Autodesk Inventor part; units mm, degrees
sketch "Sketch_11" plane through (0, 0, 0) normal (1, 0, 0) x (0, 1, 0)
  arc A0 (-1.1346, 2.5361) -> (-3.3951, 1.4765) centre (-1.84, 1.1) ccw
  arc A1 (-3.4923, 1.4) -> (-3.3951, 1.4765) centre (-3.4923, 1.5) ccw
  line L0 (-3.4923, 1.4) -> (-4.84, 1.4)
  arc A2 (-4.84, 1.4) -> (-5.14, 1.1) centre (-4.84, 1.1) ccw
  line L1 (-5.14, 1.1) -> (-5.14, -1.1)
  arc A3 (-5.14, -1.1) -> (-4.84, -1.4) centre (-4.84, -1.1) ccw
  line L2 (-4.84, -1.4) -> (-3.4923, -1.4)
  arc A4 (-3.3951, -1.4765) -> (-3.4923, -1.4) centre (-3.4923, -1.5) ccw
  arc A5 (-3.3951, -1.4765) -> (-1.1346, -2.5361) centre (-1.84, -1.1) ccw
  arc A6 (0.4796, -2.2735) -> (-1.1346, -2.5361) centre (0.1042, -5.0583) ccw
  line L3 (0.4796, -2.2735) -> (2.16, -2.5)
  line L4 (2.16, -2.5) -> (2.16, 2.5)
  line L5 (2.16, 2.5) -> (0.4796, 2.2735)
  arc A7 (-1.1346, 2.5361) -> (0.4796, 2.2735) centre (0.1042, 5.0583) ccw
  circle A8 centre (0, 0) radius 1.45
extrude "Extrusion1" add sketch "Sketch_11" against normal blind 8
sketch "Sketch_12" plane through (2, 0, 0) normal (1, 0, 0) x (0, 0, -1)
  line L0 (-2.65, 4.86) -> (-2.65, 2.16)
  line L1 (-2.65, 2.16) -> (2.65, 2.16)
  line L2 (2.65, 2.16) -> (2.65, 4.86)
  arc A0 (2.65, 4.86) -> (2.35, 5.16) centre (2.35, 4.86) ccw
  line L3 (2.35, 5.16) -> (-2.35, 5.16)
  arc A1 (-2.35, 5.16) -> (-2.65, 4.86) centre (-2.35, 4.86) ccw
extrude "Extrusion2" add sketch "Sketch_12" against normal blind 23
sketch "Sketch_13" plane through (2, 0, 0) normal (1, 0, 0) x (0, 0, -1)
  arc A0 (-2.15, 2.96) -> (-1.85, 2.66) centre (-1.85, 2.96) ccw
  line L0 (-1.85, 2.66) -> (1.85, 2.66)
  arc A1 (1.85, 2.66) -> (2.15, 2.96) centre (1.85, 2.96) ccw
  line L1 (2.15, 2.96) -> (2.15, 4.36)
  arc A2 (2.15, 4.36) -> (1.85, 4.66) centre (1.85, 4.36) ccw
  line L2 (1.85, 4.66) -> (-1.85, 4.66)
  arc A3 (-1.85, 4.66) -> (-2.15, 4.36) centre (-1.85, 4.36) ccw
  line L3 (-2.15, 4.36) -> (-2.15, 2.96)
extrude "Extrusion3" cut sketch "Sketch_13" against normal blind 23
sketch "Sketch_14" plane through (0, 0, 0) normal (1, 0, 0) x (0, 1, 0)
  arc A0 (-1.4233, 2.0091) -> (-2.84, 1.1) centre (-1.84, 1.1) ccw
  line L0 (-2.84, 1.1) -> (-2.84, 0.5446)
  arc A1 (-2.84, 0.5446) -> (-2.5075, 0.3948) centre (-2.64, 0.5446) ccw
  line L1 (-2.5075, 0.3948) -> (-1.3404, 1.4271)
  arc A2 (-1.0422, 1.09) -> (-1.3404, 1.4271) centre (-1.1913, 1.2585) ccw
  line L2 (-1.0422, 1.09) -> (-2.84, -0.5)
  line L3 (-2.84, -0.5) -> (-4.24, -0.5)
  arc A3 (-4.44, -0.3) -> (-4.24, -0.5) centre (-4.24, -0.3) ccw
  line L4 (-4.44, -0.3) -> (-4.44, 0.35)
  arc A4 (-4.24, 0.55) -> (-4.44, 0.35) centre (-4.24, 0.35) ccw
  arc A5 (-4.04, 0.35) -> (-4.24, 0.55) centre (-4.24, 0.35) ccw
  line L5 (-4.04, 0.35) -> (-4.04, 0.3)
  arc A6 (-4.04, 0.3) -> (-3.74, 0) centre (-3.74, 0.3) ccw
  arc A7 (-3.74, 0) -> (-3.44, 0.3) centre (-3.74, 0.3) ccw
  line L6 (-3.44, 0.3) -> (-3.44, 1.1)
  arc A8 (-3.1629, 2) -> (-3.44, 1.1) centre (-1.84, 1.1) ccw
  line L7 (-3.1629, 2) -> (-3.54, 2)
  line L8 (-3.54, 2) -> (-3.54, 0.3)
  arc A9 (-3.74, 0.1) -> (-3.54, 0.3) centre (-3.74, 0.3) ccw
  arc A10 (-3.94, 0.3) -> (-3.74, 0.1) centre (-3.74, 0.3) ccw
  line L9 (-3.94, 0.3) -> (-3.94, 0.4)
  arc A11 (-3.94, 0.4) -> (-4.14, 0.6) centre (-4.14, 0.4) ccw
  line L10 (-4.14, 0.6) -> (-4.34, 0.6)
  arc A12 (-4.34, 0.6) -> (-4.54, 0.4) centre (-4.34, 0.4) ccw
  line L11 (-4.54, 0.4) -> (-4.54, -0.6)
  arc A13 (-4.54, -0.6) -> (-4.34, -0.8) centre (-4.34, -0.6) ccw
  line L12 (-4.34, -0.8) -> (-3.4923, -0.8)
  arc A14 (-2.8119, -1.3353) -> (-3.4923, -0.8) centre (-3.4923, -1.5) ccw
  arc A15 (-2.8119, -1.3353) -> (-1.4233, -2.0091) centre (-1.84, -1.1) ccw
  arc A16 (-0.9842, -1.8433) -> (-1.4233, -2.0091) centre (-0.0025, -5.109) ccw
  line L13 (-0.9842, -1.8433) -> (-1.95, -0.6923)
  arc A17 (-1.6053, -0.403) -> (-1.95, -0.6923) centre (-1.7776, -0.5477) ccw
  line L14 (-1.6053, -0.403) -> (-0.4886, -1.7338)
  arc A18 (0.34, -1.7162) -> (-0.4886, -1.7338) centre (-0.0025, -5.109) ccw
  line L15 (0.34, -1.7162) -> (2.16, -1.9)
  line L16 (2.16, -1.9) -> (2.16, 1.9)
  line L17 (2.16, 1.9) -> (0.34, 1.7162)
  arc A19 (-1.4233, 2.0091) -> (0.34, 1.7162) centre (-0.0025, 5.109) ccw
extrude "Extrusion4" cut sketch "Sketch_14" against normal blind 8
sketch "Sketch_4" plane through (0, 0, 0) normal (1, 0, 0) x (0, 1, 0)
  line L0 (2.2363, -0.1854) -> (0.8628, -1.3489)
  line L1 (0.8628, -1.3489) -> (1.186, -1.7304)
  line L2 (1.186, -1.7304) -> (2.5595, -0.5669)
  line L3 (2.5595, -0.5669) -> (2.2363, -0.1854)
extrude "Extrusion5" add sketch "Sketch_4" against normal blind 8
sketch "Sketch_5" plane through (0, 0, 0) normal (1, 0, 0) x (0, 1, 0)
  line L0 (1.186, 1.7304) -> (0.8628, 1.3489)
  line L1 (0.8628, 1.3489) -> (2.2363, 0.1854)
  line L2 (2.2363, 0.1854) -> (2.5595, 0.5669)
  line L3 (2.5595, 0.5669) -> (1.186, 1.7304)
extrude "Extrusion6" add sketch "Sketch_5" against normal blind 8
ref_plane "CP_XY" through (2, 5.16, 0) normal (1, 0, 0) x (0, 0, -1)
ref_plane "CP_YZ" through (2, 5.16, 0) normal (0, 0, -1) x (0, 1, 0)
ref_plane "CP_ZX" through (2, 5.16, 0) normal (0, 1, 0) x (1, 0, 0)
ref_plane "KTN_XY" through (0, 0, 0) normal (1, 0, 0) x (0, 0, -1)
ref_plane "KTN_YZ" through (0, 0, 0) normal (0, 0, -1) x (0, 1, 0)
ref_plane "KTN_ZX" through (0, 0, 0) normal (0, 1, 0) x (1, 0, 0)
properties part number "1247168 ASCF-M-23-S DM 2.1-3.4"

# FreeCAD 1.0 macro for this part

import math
import FreeCAD as App
import Part
import Sketcher
from FreeCAD import Vector
Q = App.Units.Quantity

doc = App.newDocument("Part")
body = doc.addObject("PartDesign::Body", "Body")

# Sketch on YZ plane
sketch1 = doc.addObject("Sketcher::SketchObject", "Sketch")
body.addObject(sketch1)
sketch1.AttachmentSupport = (doc.YZ_Plane, [""])
sketch1.MapMode = "FlatFace"
sketch1.addGeometry([
    Part.ArcOfCircle(Part.Circle(Vector(0.1, 5.06, 0), Vector(0, 0, 1), 2.81), math.radians(-116), math.radians(-82)),  # 0
    Part.ArcOfCircle(Part.Circle(Vector(-1.84, 1.1, 0), Vector(0, 0, 1), 1.6), math.radians(64), math.radians(166)),  # 1
    Part.ArcOfCircle(Part.Circle(Vector(-3.49, 1.5, 0), Vector(0, 0, 1), 0.1), math.radians(-90), math.radians(-14)),  # 2
    Part.LineSegment(Vector(-3.49, 1.4, 0), Vector(-4.84, 1.4, 0)),  # 3
    Part.ArcOfCircle(Part.Circle(Vector(-4.84, 1.1, 0), Vector(0, 0, 1), 0.3), math.radians(90), math.radians(180)),  # 4
    Part.LineSegment(Vector(-5.14, 1.1, 0), Vector(-5.14, -1.1, 0)),  # 5
    Part.ArcOfCircle(Part.Circle(Vector(-4.84, -1.1, 0), Vector(0, 0, 1), 0.3), math.radians(180), math.radians(270)),  # 6
    Part.LineSegment(Vector(-4.84, -1.4, 0), Vector(-3.49, -1.4, 0)),  # 7
    Part.ArcOfCircle(Part.Circle(Vector(-3.49, -1.5, 0), Vector(0, 0, 1), 0.1), math.radians(14), math.radians(90)),  # 8
    Part.ArcOfCircle(Part.Circle(Vector(-1.84, -1.1, 0), Vector(0, 0, 1), 1.6), math.radians(-166), math.radians(-64)),  # 9
    Part.ArcOfCircle(Part.Circle(Vector(0.1, -5.06, 0), Vector(0, 0, 1), 2.81), math.radians(82), math.radians(116)),  # 10
    Part.LineSegment(Vector(0.48, -2.27, 0), Vector(2.16, -2.5, 0)),  # 11
    Part.LineSegment(Vector(2.16, -2.5, 0), Vector(2.16, 2.5, 0)),  # 12
    Part.LineSegment(Vector(2.16, 2.5, 0), Vector(0.48, 2.27, 0)),  # 13
    Part.Circle(Vector(0, 0, 0), Vector(0, 0, 1), 1.45),  # 14
], False)
sketch1.addConstraint([
    Sketcher.Constraint("Tangent", 0, 1, 1, 1),
    Sketcher.Constraint("Tangent", 1, 2, 2, 2),
    Sketcher.Constraint("Tangent", 2, 1, 3, 1),
    Sketcher.Constraint("Tangent", 3, 2, 4, 1),
    Sketcher.Constraint("Tangent", 4, 2, 5, 1),
    Sketcher.Constraint("Tangent", 5, 2, 6, 1),
    Sketcher.Constraint("Tangent", 6, 2, 7, 1),
    Sketcher.Constraint("Tangent", 7, 2, 8, 2),
    Sketcher.Constraint("Tangent", 8, 1, 9, 1),
    Sketcher.Constraint("Tangent", 9, 2, 10, 2),
    Sketcher.Constraint("Tangent", 10, 1, 11, 1),
    Sketcher.Constraint("Coincident", 11, 2, 12, 1),
    Sketcher.Constraint("Coincident", 12, 2, 13, 1),
    Sketcher.Constraint("Tangent", 13, 2, 0, 2),
    Sketcher.Constraint("Horizontal", 3),
    Sketcher.Constraint("Vertical", 5),
    Sketcher.Constraint("Horizontal", 7),
    Sketcher.Constraint("Vertical", 12),
    Sketcher.Constraint("Coincident", 14, 3, -1, 1),
    Sketcher.Constraint("Equal", 4, 6),
    Sketcher.Constraint("Equal", 2, 8),
    Sketcher.Constraint("Equal", 1, 9),
    Sketcher.Constraint("Equal", 0, 10),
    Sketcher.Constraint("Symmetric", 2, 3, 8, 3, -1),
    Sketcher.Constraint("Symmetric", 0, 3, 10, 3, -1),
    Sketcher.Constraint("Horizontal", 1, 3, 4, 3),
    Sketcher.Constraint("Vertical", 10, 1, 13, 2),
    Sketcher.Constraint("Diameter", 14, Q("2.9 mm")),
    Sketcher.Constraint("Radius", 1, Q("1.6 mm")),
    Sketcher.Constraint("Radius", 2, Q("0.1 mm")),
    Sketcher.Constraint("Radius", 4, Q("0.3 mm")),
    Sketcher.Constraint("DistanceY", 12, 1, 12, 2, Q("5 mm")),
    Sketcher.Constraint("Radius", 0, Q("2.81 mm")),
    Sketcher.Constraint("DistanceY", 5, 2, 5, 1, Q("2.2 mm")),
    Sketcher.Constraint("DistanceX", 4, 3, 1, 3, Q("3 mm")),
    Sketcher.Constraint("DistanceX", 9, 3, 11, 2, Q("4 mm")),
    Sketcher.Constraint("DistanceX", 1, 3, -1, 1, Q("1.84 mm")),
    Sketcher.Constraint("DistanceY", -1, 1, 0, 1, Q("2.536 mm")),
])
pad1 = doc.addObject("PartDesign::Pad", "Pad")
body.addObject(pad1)
pad1.Profile = sketch1
pad1.Length = 8
pad1.Reversed = True

# Sketch on YZ plane
sketch2 = doc.addObject("Sketcher::SketchObject", "Sketch001")
body.addObject(sketch2)
sketch2.AttachmentSupport = (doc.YZ_Plane, [""])
sketch2.MapMode = "FlatFace"
sketch2.AttachmentOffset = App.Placement(Vector(0, 0, 2), App.Rotation())
sketch2.addGeometry([
    Part.ArcOfCircle(Part.Circle(Vector(4.86, 2.35, 0), Vector(0, 0, 1), 0.3), math.radians(0), math.radians(90)),  # 0
    Part.LineSegment(Vector(4.86, 2.65, 0), Vector(2.16, 2.65, 0)),  # 1
    Part.LineSegment(Vector(2.16, 2.65, 0), Vector(2.16, -2.65, 0)),  # 2
    Part.LineSegment(Vector(2.16, -2.65, 0), Vector(4.86, -2.65, 0)),  # 3
    Part.ArcOfCircle(Part.Circle(Vector(4.86, -2.35, 0), Vector(0, 0, 1), 0.3), math.radians(-90), math.radians(0)),  # 4
    Part.LineSegment(Vector(5.16, -2.35, 0), Vector(5.16, 2.35, 0)),  # 5
], False)
sketch2.addConstraint([
    Sketcher.Constraint("Tangent", 0, 2, 1, 1),
    Sketcher.Constraint("Coincident", 1, 2, 2, 1),
    Sketcher.Constraint("Coincident", 2, 2, 3, 1),
    Sketcher.Constraint("Tangent", 3, 2, 4, 1),
    Sketcher.Constraint("Tangent", 4, 2, 5, 1),
    Sketcher.Constraint("Tangent", 5, 2, 0, 1),
    Sketcher.Constraint("Horizontal", 1),
    Sketcher.Constraint("Vertical", 2),
    Sketcher.Constraint("Horizontal", 3),
    Sketcher.Constraint("Vertical", 5),
    Sketcher.Constraint("Equal", 0, 4),
    Sketcher.Constraint("Radius", 0, Q("0.3 mm")),
    Sketcher.Constraint("DistanceX", 1, 2, 1, 1, Q("2.7 mm")),
    Sketcher.Constraint("DistanceY", 2, 2, 2, 1, Q("5.3 mm")),
    Sketcher.Constraint("DistanceX", -1, 1, 0, 3, Q("4.86 mm")),
    Sketcher.Constraint("DistanceY", -1, 1, 0, 3, Q("2.35 mm")),
])
pad2 = doc.addObject("PartDesign::Pad", "Pad001")
body.addObject(pad2)
pad2.Profile = sketch2
pad2.Length = 23
pad2.Reversed = True

# Sketch on YZ plane
sketch3 = doc.addObject("Sketcher::SketchObject", "Sketch002")
body.addObject(sketch3)
sketch3.AttachmentSupport = (doc.YZ_Plane, [""])
sketch3.MapMode = "FlatFace"
sketch3.AttachmentOffset = App.Placement(Vector(0, 0, 2), App.Rotation())
sketch3.addGeometry([
    Part.LineSegment(Vector(4.36, 2.15, 0), Vector(2.96, 2.15, 0)),  # 0
    Part.ArcOfCircle(Part.Circle(Vector(2.96, 1.85, 0), Vector(0, 0, 1), 0.3), math.radians(90), math.radians(180)),  # 1
    Part.LineSegment(Vector(2.66, 1.85, 0), Vector(2.66, -1.85, 0)),  # 2
    Part.ArcOfCircle(Part.Circle(Vector(2.96, -1.85, 0), Vector(0, 0, 1), 0.3), math.radians(180), math.radians(270)),  # 3
    Part.LineSegment(Vector(2.96, -2.15, 0), Vector(4.36, -2.15, 0)),  # 4
    Part.ArcOfCircle(Part.Circle(Vector(4.36, -1.85, 0), Vector(0, 0, 1), 0.3), math.radians(-90), math.radians(0)),  # 5
    Part.LineSegment(Vector(4.66, -1.85, 0), Vector(4.66, 1.85, 0)),  # 6
    Part.ArcOfCircle(Part.Circle(Vector(4.36, 1.85, 0), Vector(0, 0, 1), 0.3), math.radians(0), math.radians(90)),  # 7
], False)
sketch3.addConstraint([
    Sketcher.Constraint("Tangent", 0, 2, 1, 1),
    Sketcher.Constraint("Tangent", 1, 2, 2, 1),
    Sketcher.Constraint("Tangent", 2, 2, 3, 1),
    Sketcher.Constraint("Tangent", 3, 2, 4, 1),
    Sketcher.Constraint("Tangent", 4, 2, 5, 1),
    Sketcher.Constraint("Tangent", 5, 2, 6, 1),
    Sketcher.Constraint("Tangent", 6, 2, 7, 1),
    Sketcher.Constraint("Tangent", 7, 2, 0, 1),
    Sketcher.Constraint("Horizontal", 0),
    Sketcher.Constraint("Vertical", 2),
    Sketcher.Constraint("Horizontal", 4),
    Sketcher.Constraint("Vertical", 6),
    Sketcher.Constraint("Equal", 1, 3),
    Sketcher.Constraint("Equal", 3, 5),
    Sketcher.Constraint("Equal", 5, 7),
    Sketcher.Constraint("Radius", 1, Q("0.3 mm")),
    Sketcher.Constraint("DistanceX", 0, 2, 0, 1, Q("1.4 mm")),
    Sketcher.Constraint("DistanceY", 2, 2, 2, 1, Q("3.7 mm")),
    Sketcher.Constraint("DistanceX", -1, 1, 1, 3, Q("2.96 mm")),
    Sketcher.Constraint("DistanceY", -1, 1, 1, 3, Q("1.85 mm")),
])
pocket1 = doc.addObject("PartDesign::Pocket", "Pocket")
body.addObject(pocket1)
pocket1.Profile = sketch3
pocket1.Length = 23

# Sketch on YZ plane
sketch4 = doc.addObject("Sketcher::SketchObject", "Sketch003")
body.addObject(sketch4)
sketch4.AttachmentSupport = (doc.YZ_Plane, [""])
sketch4.MapMode = "FlatFace"
sketch4.addGeometry([
    Part.ArcOfCircle(Part.Circle(Vector(0, 5.11, 0), Vector(0, 0, 1), 3.41), math.radians(-115), math.radians(-84)),  # 0
    Part.ArcOfCircle(Part.Circle(Vector(-1.84, 1.1, 0), Vector(0, 0, 1), 1), math.radians(65), math.radians(180)),  # 1
    Part.LineSegment(Vector(-2.84, 1.1, 0), Vector(-2.84, 0.54, 0)),  # 2
    Part.ArcOfCircle(Part.Circle(Vector(-2.64, 0.54, 0), Vector(0, 0, 1), 0.2), math.radians(180), math.radians(311)),  # 3
    Part.LineSegment(Vector(-2.51, 0.39, 0), Vector(-1.34, 1.43, 0)),  # 4
    Part.ArcOfCircle(Part.Circle(Vector(-1.19, 1.26, 0), Vector(0, 0, 1), 0.22), math.radians(-48), math.radians(131)),  # 5
    Part.LineSegment(Vector(-1.04, 1.09, 0), Vector(-2.84, -0.5, 0)),  # 6
    Part.LineSegment(Vector(-2.84, -0.5, 0), Vector(-4.24, -0.5, 0)),  # 7
    Part.ArcOfCircle(Part.Circle(Vector(-4.24, -0.3, 0), Vector(0, 0, 1), 0.2), math.radians(180), math.radians(270)),  # 8
    Part.LineSegment(Vector(-4.44, -0.3, 0), Vector(-4.44, 0.35, 0)),  # 9
    Part.ArcOfCircle(Part.Circle(Vector(-4.24, 0.35, 0), Vector(0, 0, 1), 0.2), math.radians(0), math.radians(180)),  # 10
    Part.LineSegment(Vector(-4.04, 0.35, 0), Vector(-4.04, 0.3, 0)),  # 11
    Part.ArcOfCircle(Part.Circle(Vector(-3.74, 0.3, 0), Vector(0, 0, 1), 0.3), math.radians(180), math.radians(360)),  # 12
    Part.LineSegment(Vector(-3.44, 0.3, 0), Vector(-3.44, 1.1, 0)),  # 13
    Part.ArcOfCircle(Part.Circle(Vector(-1.84, 1.1, 0), Vector(0, 0, 1), 1.6), math.radians(146), math.radians(180)),  # 14
    Part.LineSegment(Vector(-3.16, 2, 0), Vector(-3.54, 2, 0)),  # 15
    Part.LineSegment(Vector(-3.54, 2, 0), Vector(-3.54, 0.3, 0)),  # 16
    Part.ArcOfCircle(Part.Circle(Vector(-3.74, 0.3, 0), Vector(0, 0, 1), 0.2), math.radians(180), math.radians(360)),  # 17
    Part.LineSegment(Vector(-3.94, 0.3, 0), Vector(-3.94, 0.4, 0)),  # 18
    Part.ArcOfCircle(Part.Circle(Vector(-4.14, 0.4, 0), Vector(0, 0, 1), 0.2), math.radians(0), math.radians(90)),  # 19
    Part.LineSegment(Vector(-4.14, 0.6, 0), Vector(-4.34, 0.6, 0)),  # 20
    Part.ArcOfCircle(Part.Circle(Vector(-4.34, 0.4, 0), Vector(0, 0, 1), 0.2), math.radians(90), math.radians(180)),  # 21
    Part.LineSegment(Vector(-4.54, 0.4, 0), Vector(-4.54, -0.6, 0)),  # 22
    Part.ArcOfCircle(Part.Circle(Vector(-4.34, -0.6, 0), Vector(0, 0, 1), 0.2), math.radians(180), math.radians(270)),  # 23
    Part.LineSegment(Vector(-4.34, -0.8, 0), Vector(-3.49, -0.8, 0)),  # 24
    Part.ArcOfCircle(Part.Circle(Vector(-3.49, -1.5, 0), Vector(0, 0, 1), 0.7), math.radians(14), math.radians(90)),  # 25
    Part.ArcOfCircle(Part.Circle(Vector(-1.84, -1.1, 0), Vector(0, 0, 1), 1), math.radians(-166), math.radians(-65)),  # 26
    Part.ArcOfCircle(Part.Circle(Vector(-0.01, -5.1, 0), Vector(0, 0, 1), 3.4), math.radians(106.72), math.radians(114.65)),  # 27
    Part.LineSegment(Vector(-0.98, -1.84, 0), Vector(-1.95, -0.69, 0)),  # 28
    Part.ArcOfCircle(Part.Circle(Vector(-1.78, -0.55, 0), Vector(0, 0, 1), 0.23), math.radians(40), math.radians(220)),  # 29
    Part.LineSegment(Vector(-1.61, -0.4, 0), Vector(-0.49, -1.73, 0)),  # 30
    Part.ArcOfCircle(Part.Circle(Vector(0, -5.11, 0), Vector(0, 0, 1), 3.41), math.radians(84.23), math.radians(98.2)),  # 31
    Part.LineSegment(Vector(0.34, -1.72, 0), Vector(2.16, -1.9, 0)),  # 32
    Part.LineSegment(Vector(2.16, -1.9, 0), Vector(2.16, 1.9, 0)),  # 33
    Part.LineSegment(Vector(2.16, 1.9, 0), Vector(0.34, 1.72, 0)),  # 34
], False)
sketch4.addConstraint([
    Sketcher.Constraint("Tangent", 0, 1, 1, 1),
    Sketcher.Constraint("Tangent", 1, 2, 2, 1),
    Sketcher.Constraint("Tangent", 2, 2, 3, 1),
    Sketcher.Constraint("Tangent", 3, 2, 4, 1),
    Sketcher.Constraint("Tangent", 4, 2, 5, 2),
    Sketcher.Constraint("Tangent", 5, 1, 6, 1),
    Sketcher.Constraint("Coincident", 6, 2, 7, 1),
    Sketcher.Constraint("Tangent", 7, 2, 8, 2),
    Sketcher.Constraint("Tangent", 8, 1, 9, 1),
    Sketcher.Constraint("Tangent", 9, 2, 10, 2),
    Sketcher.Constraint("Tangent", 10, 1, 11, 1),
    Sketcher.Constraint("Tangent", 11, 2, 12, 1),
    Sketcher.Constraint("Tangent", 12, 2, 13, 1),
    Sketcher.Constraint("Tangent", 13, 2, 14, 2),
    Sketcher.Constraint("Coincident", 14, 1, 15, 1),
    Sketcher.Constraint("Coincident", 15, 2, 16, 1),
    Sketcher.Constraint("Tangent", 16, 2, 17, 2),
    Sketcher.Constraint("Tangent", 17, 1, 18, 1),
    Sketcher.Constraint("Tangent", 18, 2, 19, 1),
    Sketcher.Constraint("Tangent", 19, 2, 20, 1),
    Sketcher.Constraint("Tangent", 20, 2, 21, 1),
    Sketcher.Constraint("Tangent", 21, 2, 22, 1),
    Sketcher.Constraint("Tangent", 22, 2, 23, 1),
    Sketcher.Constraint("Tangent", 23, 2, 24, 1),
    Sketcher.Constraint("Tangent", 24, 2, 25, 2),
    Sketcher.Constraint("Tangent", 25, 1, 26, 1),
    Sketcher.Constraint("Tangent", 26, 2, 27, 2),
    Sketcher.Constraint("Coincident", 27, 1, 28, 1),
    Sketcher.Constraint("Tangent", 28, 2, 29, 2),
    Sketcher.Constraint("Tangent", 29, 1, 30, 1),
    Sketcher.Constraint("Coincident", 30, 2, 31, 2),
    Sketcher.Constraint("Tangent", 31, 1, 32, 1),
    Sketcher.Constraint("Coincident", 32, 2, 33, 1),
    Sketcher.Constraint("Coincident", 33, 2, 34, 1),
    Sketcher.Constraint("Tangent", 34, 2, 0, 2),
    Sketcher.Constraint("Vertical", 2),
    Sketcher.Constraint("Horizontal", 7),
    Sketcher.Constraint("Vertical", 9),
    Sketcher.Constraint("Vertical", 11),
    Sketcher.Constraint("Vertical", 13),
    Sketcher.Constraint("Horizontal", 15),
    Sketcher.Constraint("Vertical", 16),
    Sketcher.Constraint("Vertical", 18),
    Sketcher.Constraint("Horizontal", 20),
    Sketcher.Constraint("Vertical", 22),
    Sketcher.Constraint("Horizontal", 24),
    Sketcher.Constraint("Vertical", 33),
    Sketcher.Constraint("Coincident", 14, 3, 1, 3),
    Sketcher.Constraint("Coincident", 17, 3, 12, 3),
    Sketcher.Constraint("Equal", 3, 8),
    Sketcher.Constraint("Equal", 8, 10),
    Sketcher.Constraint("Equal", 10, 17),
    Sketcher.Constraint("Equal", 17, 19),
    Sketcher.Constraint("Equal", 19, 21),
    Sketcher.Constraint("Equal", 21, 23),
    Sketcher.Constraint("Equal", 1, 26),
    Sketcher.Constraint("Equal", 5, 29),
    Sketcher.Constraint("Symmetric", 1, 3, 26, 3, -1),
    Sketcher.Constraint("Symmetric", 31, 1, 34, 2, -1),
    Sketcher.Constraint("Parallel", 4, 6),
    Sketcher.Constraint("Parallel", 28, 30),
    Sketcher.Constraint("Vertical", 0, 3, 31, 3),
    Sketcher.Constraint("Vertical", 2, 2, 6, 2),
    Sketcher.Constraint("Vertical", 0, 1, 26, 2),
    Sketcher.Constraint("Equal", 32, 34),
    Sketcher.Constraint("Radius", 1, Q("1 mm")),
    Sketcher.Constraint("Radius", 3, Q("0.2 mm")),
    Sketcher.Constraint("Radius", 12, Q("0.3 mm")),
    Sketcher.Constraint("Radius", 14, Q("1.6 mm")),
    Sketcher.Constraint("Radius", 25, Q("0.7 mm")),
    Sketcher.Constraint("DistanceY", 22, 2, 22, 1, Q("1 mm")),
    Sketcher.Constraint("Angle", 28, Q("130 deg")),
    Sketcher.Constraint("Radius", 0, Q("3.41 mm")),
    Sketcher.Constraint("DistanceX", 20, 2, 20, 1, Q("0.2 mm")),
    Sketcher.Constraint("DistanceY", 13, 1, 13, 2, Q("0.8 mm")),
    Sketcher.Constraint("DistanceY", 16, 2, 16, 1, Q("1.7 mm")),
    Sketcher.Constraint("DistanceY", 18, 1, 18, 2, Q("0.1 mm")),
    Sketcher.Constraint("DistanceY", 33, 1, 33, 2, Q("3.8 mm")),
    Sketcher.Constraint("DistanceY", -1, 1, 14, 1, Q("2 mm")),
    Sketcher.Constraint("Radius", 5, Q("0.225 mm")),
    Sketcher.Constraint("Distance", 6, Q("2.4 mm")),
    Sketcher.Constraint("DistanceY", 9, 1, 9, 2, Q("0.65 mm")),
    Sketcher.Constraint("DistanceY", 11, 2, 11, 1, Q("0.05 mm")),
    Sketcher.Constraint("Angle", 6, Q("-138.51 deg")),
    Sketcher.Constraint("Radius", 27, Q("3.3953 mm")),
    Sketcher.Constraint("DistanceX", 1, 3, -1, 1, Q("1.84 mm")),
    Sketcher.Constraint("DistanceX", 28, 2, -1, 1, Q("1.95 mm")),
    Sketcher.Constraint("DistanceX", -1, 1, 31, 1, Q("0.34 mm")),
    Sketcher.Constraint("DistanceX", -1, 1, 32, 2, Q("2.16 mm")),
    Sketcher.Constraint("DistanceY", 31, 3, 29, 3, Q("4.56 mm")),
])
pocket2 = doc.addObject("PartDesign::Pocket", "Pocket001")
body.addObject(pocket2)
pocket2.Profile = sketch4
pocket2.Length = 8

# Sketch on YZ plane
sketch5 = doc.addObject("Sketcher::SketchObject", "Sketch004")
body.addObject(sketch5)
sketch5.AttachmentSupport = (doc.YZ_Plane, [""])
sketch5.MapMode = "FlatFace"
sketch5.addGeometry([
    Part.LineSegment(Vector(2.6, -0.6, 0), Vector(2.2, -0.2, 0)),
    Part.LineSegment(Vector(2.2, -0.2, 0), Vector(0.9, -1.3, 0)),
    Part.LineSegment(Vector(0.9, -1.3, 0), Vector(1.2, -1.7, 0)),
    Part.LineSegment(Vector(1.2, -1.7, 0), Vector(2.6, -0.6, 0)),
], False)
sketch5.addConstraint([
    Sketcher.Constraint("Coincident", 0, 2, 1, 1),
    Sketcher.Constraint("Coincident", 1, 2, 2, 1),
    Sketcher.Constraint("Coincident", 2, 2, 3, 1),
    Sketcher.Constraint("Coincident", 3, 2, 0, 1),
    Sketcher.Constraint("Perpendicular", 0, 1),
    Sketcher.Constraint("Perpendicular", 1, 2),
    Sketcher.Constraint("Perpendicular", 2, 3),
    Sketcher.Constraint("Distance", 0, Q("0.5 mm")),
    Sketcher.Constraint("Distance", 1, Q("1.8 mm")),
    Sketcher.Constraint("Angle", 0, Q("130.2707 deg")),
    Sketcher.Constraint("DistanceY", 1, 2, -1, 1, Q("1.349 mm")),
    Sketcher.Constraint("DistanceX", -1, 1, 2, 2, Q("1.186 mm")),
])
pad3 = doc.addObject("PartDesign::Pad", "Pad002")
body.addObject(pad3)
pad3.Profile = sketch5
pad3.Length = 8
pad3.Reversed = True

# Sketch on YZ plane
sketch6 = doc.addObject("Sketcher::SketchObject", "Sketch005")
body.addObject(sketch6)
sketch6.AttachmentSupport = (doc.YZ_Plane, [""])
sketch6.MapMode = "FlatFace"
sketch6.addGeometry([
    Part.LineSegment(Vector(2.6, 0.6, 0), Vector(1.2, 1.7, 0)),
    Part.LineSegment(Vector(1.2, 1.7, 0), Vector(0.9, 1.3, 0)),
    Part.LineSegment(Vector(0.9, 1.3, 0), Vector(2.2, 0.2, 0)),
    Part.LineSegment(Vector(2.2, 0.2, 0), Vector(2.6, 0.6, 0)),
], False)
sketch6.addConstraint([
    Sketcher.Constraint("Coincident", 0, 2, 1, 1),
    Sketcher.Constraint("Coincident", 1, 2, 2, 1),
    Sketcher.Constraint("Coincident", 2, 2, 3, 1),
    Sketcher.Constraint("Coincident", 3, 2, 0, 1),
    Sketcher.Constraint("Perpendicular", 0, 1),
    Sketcher.Constraint("Perpendicular", 1, 2),
    Sketcher.Constraint("Perpendicular", 2, 3),
    Sketcher.Constraint("Distance", 0, Q("1.8 mm")),
    Sketcher.Constraint("Distance", 1, Q("0.5 mm")),
    Sketcher.Constraint("Angle", 1, Q("-130.2707 deg")),
    Sketcher.Constraint("DistanceX", -1, 1, 0, 2, Q("1.186 mm")),
    Sketcher.Constraint("DistanceY", -1, 1, 1, 2, Q("1.349 mm")),
])
pad4 = doc.addObject("PartDesign::Pad", "Pad003")
body.addObject(pad4)
pad4.Profile = sketch6
pad4.Length = 8
pad4.Reversed = True

doc.recompute()
